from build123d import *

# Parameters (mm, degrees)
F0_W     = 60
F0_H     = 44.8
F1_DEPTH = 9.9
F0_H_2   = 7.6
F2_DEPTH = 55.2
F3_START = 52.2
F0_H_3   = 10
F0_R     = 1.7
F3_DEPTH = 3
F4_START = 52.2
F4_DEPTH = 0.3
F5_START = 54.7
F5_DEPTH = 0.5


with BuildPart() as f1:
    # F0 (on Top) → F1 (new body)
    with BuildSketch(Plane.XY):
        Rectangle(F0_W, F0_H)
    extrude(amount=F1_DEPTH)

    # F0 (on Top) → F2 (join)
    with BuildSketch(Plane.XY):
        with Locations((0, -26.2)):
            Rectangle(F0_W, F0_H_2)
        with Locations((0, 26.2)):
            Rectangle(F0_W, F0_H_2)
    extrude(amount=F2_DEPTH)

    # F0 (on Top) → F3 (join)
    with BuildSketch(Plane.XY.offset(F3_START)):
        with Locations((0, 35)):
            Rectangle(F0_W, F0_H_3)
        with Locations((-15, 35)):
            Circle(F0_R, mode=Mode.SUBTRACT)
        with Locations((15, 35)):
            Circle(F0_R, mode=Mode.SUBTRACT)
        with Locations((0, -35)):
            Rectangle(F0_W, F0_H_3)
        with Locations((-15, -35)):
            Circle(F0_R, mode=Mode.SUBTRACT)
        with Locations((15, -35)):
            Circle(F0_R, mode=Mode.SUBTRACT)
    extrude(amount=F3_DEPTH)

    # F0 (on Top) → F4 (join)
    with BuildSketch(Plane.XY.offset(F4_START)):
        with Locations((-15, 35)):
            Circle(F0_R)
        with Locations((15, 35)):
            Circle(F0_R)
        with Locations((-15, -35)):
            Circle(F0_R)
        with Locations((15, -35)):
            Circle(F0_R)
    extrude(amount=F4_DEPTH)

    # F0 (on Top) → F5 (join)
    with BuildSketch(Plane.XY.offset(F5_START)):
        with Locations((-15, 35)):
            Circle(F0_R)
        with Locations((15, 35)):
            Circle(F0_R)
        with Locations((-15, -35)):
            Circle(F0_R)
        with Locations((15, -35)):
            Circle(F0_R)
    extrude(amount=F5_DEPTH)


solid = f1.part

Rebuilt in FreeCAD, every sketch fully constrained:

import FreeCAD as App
import Part
import Sketcher

V = App.Vector


def add_polygon(sketch, points):
    """Adds a closed chain of lines whose ends are joined by coincident constraints."""
    first, n = sketch.GeometryCount, len(points)
    for a, b in zip(points, points[1:] + points[:1]):
        sketch.addGeometry(Part.LineSegment(App.Vector(*a, 0), App.Vector(*b, 0)), False)
    for i in range(n):
        sketch.addConstraint(Sketcher.Constraint("Coincident", first + i, 2, first + (i + 1) % n, 1))

doc = App.newDocument("Part")
params = doc.addObject("Spreadsheet::Sheet", "Params")
for row, (alias, value) in enumerate([
    ("sketch1_width", "60 mm"),
    ("sketch1_height", "44.8 mm"),
    ("pad1_length", "9.9 mm"),
    ("sketch2_width", "60 mm"),
    ("sketch2_height", "7.6 mm"),
    ("pad2_length", "55.2 mm"),
    ("sketch3_diameter", "3.4 mm"),
    ("sketch3_width", "60 mm"),
    ("sketch3_height", "10 mm"),
    ("pad3_length", "3 mm"),
    ("sketch4_diameter", "3.4 mm"),
    ("pad4_length", "0.3 mm"),
    ("sketch5_diameter", "3.4 mm"),
    ("pad5_length", "0.5 mm"),
], start=1):
    params.set(f"A{row}", alias)
    params.set(f"B{row}", "=" + value)
    params.setAlias(f"B{row}", alias)

body = doc.addObject("PartDesign::Body", "Body")

sketch1 = body.newObject("Sketcher::SketchObject", "Sketch")
sketch1.AttachmentSupport = (doc.getObject("XY_Plane"), [""])
sketch1.MapMode = "FlatFace"
add_polygon(sketch1, [(-30, 22), (-30, -22), (30, -22), (30, 22)])
sketch1.addConstraint([
    Sketcher.Constraint("Vertical", 0),
    Sketcher.Constraint("Horizontal", 1),
    Sketcher.Constraint("Vertical", 2),
    Sketcher.Constraint("Horizontal", 3),
    Sketcher.Constraint("Symmetric", 0, 2, 2, 2, -1, 1),
    Sketcher.Constraint("DistanceX", 1, 1, 1, 2, 60.0),
    Sketcher.Constraint("DistanceY", 0, 2, 0, 1, 44.8),
])
sketch1.setExpression("Constraints[9]", "Params.sketch1_width")
sketch1.setExpression("Constraints[10]", "Params.sketch1_height")
pad1 = body.newObject("PartDesign::Pad", "Pad")
pad1.Profile = sketch1
pad1.setExpression("Length", "Params.pad1_length")

sketch2 = body.newObject("Sketcher::SketchObject", "Sketch001")
sketch2.AttachmentSupport = (doc.getObject("XY_Plane"), [""])
sketch2.MapMode = "FlatFace"
add_polygon(sketch2, [(-30, -22), (-30, -30), (30, -30), (30, -22)])
add_polygon(sketch2, [(-30, 30), (-30, 22), (30, 22), (30, 30)])
sketch2.addConstraint([
    Sketcher.Constraint("Vertical", 0),
    Sketcher.Constraint("Horizontal", 1),
    Sketcher.Constraint("Vertical", 2),
    Sketcher.Constraint("Horizontal", 3),
    Sketcher.Constraint("Vertical", 4),
    Sketcher.Constraint("Horizontal", 5),
    Sketcher.Constraint("Vertical", 6),
    Sketcher.Constraint("Horizontal", 7),
    Sketcher.Constraint("Symmetric", 2, 2, 4, 2, -1, 1),
    Sketcher.Constraint("Symmetric", 0, 2, 6, 2, -1, 1),
    Sketcher.Constraint("Vertical", 3, 2, 4, 2),
    Sketcher.Constraint("DistanceX", 1, 1, 1, 2, 60.0),
    Sketcher.Constraint("DistanceY", 0, 2, 0, 1, 7.6),
    Sketcher.Constraint("DistanceY", 0, 2, -1, 1, 30.0),
])
sketch2.setExpression("Constraints[19]", "Params.sketch2_width")
sketch2.setExpression("Constraints[20]", "Params.sketch2_height")
pad2 = body.newObject("PartDesign::Pad", "Pad001")
pad2.Profile = sketch2
pad2.setExpression("Length", "Params.pad2_length")

sketch3 = body.newObject("Sketcher::SketchObject", "Sketch002")
sketch3.AttachmentSupport = (doc.getObject("XY_Plane"), [""])
sketch3.MapMode = "FlatFace"
sketch3.AttachmentOffset = App.Placement(V(0, 0, 52.2), App.Rotation())
add_polygon(sketch3, [(-30, 40), (-30, 30), (30, 30), (30, 40)])
sketch3.addGeometry(Part.Circle(V(-15, 35, 0), V(0, 0, 1), 1.7), False)
sketch3.addGeometry(Part.Circle(V(15, 35, 0), V(0, 0, 1), 1.7), False)
add_polygon(sketch3, [(-30, -30), (-30, -40), (30, -40), (30, -30)])
sketch3.addGeometry(Part.Circle(V(-15, -35, 0), V(0, 0, 1), 1.7), False)
sketch3.addGeometry(Part.Circle(V(15, -35, 0), V(0, 0, 1), 1.7), False)
sketch3.addConstraint([
    Sketcher.Constraint("Vertical", 0),
    Sketcher.Constraint("Horizontal", 1),
    Sketcher.Constraint("Vertical", 2),
    Sketcher.Constraint("Horizontal", 3),
    Sketcher.Constraint("Vertical", 6),
    Sketcher.Constraint("Horizontal", 7),
    Sketcher.Constraint("Vertical", 8),
    Sketcher.Constraint("Horizontal", 9),
    Sketcher.Constraint("Equal", 4, 5),
    Sketcher.Constraint("Equal", 5, 10),
    Sketcher.Constraint("Equal", 10, 11),
    Sketcher.Constraint("Symmetric", 5, 3, 10, 3, -1, 1),
    Sketcher.Constraint("Symmetric", 4, 3, 11, 3, -1, 1),
    Sketcher.Constraint("Symmetric", 2, 2, 6, 2, -1, 1),
    Sketcher.Constraint("Symmetric", 0, 2, 8, 2, -1, 1),
    Sketcher.Constraint("Symmetric", 4, 3, 5, 3, -2),
    Sketcher.Constraint("Vertical", 3, 2, 6, 2),
    Sketcher.Constraint("Diameter", 4, 3.4),
    Sketcher.Constraint("DistanceX", 1, 1, 1, 2, 60.0),
    Sketcher.Constraint("DistanceY", 0, 2, 0, 1, 10.0),
    Sketcher.Constraint("DistanceX", 4, 3, -1, 1, 15.0),
    Sketcher.Constraint("DistanceY", -1, 1, 4, 3, 35.0),
    Sketcher.Constraint("DistanceY", -1, 1, 0, 2, 30.0),
])
sketch3.setExpression("Constraints[25]", "Params.sketch3_diameter")
sketch3.setExpression("Constraints[26]", "Params.sketch3_width")
sketch3.setExpression("Constraints[27]", "Params.sketch3_height")
pad3 = body.newObject("PartDesign::Pad", "Pad002")
pad3.Profile = sketch3
pad3.setExpression("Length", "Params.pad3_length")

sketch4 = body.newObject("Sketcher::SketchObject", "Sketch003")
sketch4.AttachmentSupport = (doc.getObject("XY_Plane"), [""])
sketch4.MapMode = "FlatFace"
sketch4.AttachmentOffset = App.Placement(V(0, 0, 52.2), App.Rotation())
sketch4.addGeometry([
    Part.Circle(V(-15, 35, 0), V(0, 0, 1), 1.7),
    Part.Circle(V(15, 35, 0), V(0, 0, 1), 1.7),
    Part.Circle(V(-15, -35, 0), V(0, 0, 1), 1.7),
    Part.Circle(V(15, -35, 0), V(0, 0, 1), 1.7),
], False)
sketch4.addConstraint([
    Sketcher.Constraint("Equal", 0, 1),
    Sketcher.Constraint("Equal", 1, 2),
    Sketcher.Constraint("Equal", 2, 3),
    Sketcher.Constraint("Symmetric", 1, 3, 2, 3, -1, 1),
    Sketcher.Constraint("Symmetric", 0, 3, 3, 3, -1, 1),
    Sketcher.Constraint("Symmetric", 0, 3, 1, 3, -2),
    Sketcher.Constraint("Diameter", 0, 3.4),
    Sketcher.Constraint("DistanceX", 0, 3, -1, 1, 15.0),
    Sketcher.Constraint("DistanceY", -1, 1, 0, 3, 35.0),
])
sketch4.setExpression("Constraints[6]", "Params.sketch4_diameter")
pad4 = body.newObject("PartDesign::Pad", "Pad003")
pad4.Profile = sketch4
pad4.setExpression("Length", "Params.pad4_length")

sketch5 = body.newObject("Sketcher::SketchObject", "Sketch004")
sketch5.AttachmentSupport = (doc.getObject("XY_Plane"), [""])
sketch5.MapMode = "FlatFace"
sketch5.AttachmentOffset = App.Placement(V(0, 0, 54.7), App.Rotation())
sketch5.addGeometry([
    Part.Circle(V(-15, 35, 0), V(0, 0, 1), 1.7),
    Part.Circle(V(15, 35, 0), V(0, 0, 1), 1.7),
    Part.Circle(V(-15, -35, 0), V(0, 0, 1), 1.7),
    Part.Circle(V(15, -35, 0), V(0, 0, 1), 1.7),
], False)
sketch5.addConstraint([
    Sketcher.Constraint("Equal", 0, 1),
    Sketcher.Constraint("Equal", 1, 2),
    Sketcher.Constraint("Equal", 2, 3),
    Sketcher.Constraint("Symmetric", 1, 3, 2, 3, -1, 1),
    Sketcher.Constraint("Symmetric", 0, 3, 3, 3, -1, 1),
    Sketcher.Constraint("Symmetric", 0, 3, 1, 3, -2),
    Sketcher.Constraint("Diameter", 0, 3.4),
    Sketcher.Constraint("DistanceX", 0, 3, -1, 1, 15.0),
    Sketcher.Constraint("DistanceY", -1, 1, 0, 3, 35.0),
])
sketch5.setExpression("Constraints[6]", "Params.sketch5_diameter")
pad5 = body.newObject("PartDesign::Pad", "Pad004")
pad5.Profile = sketch5
pad5.setExpression("Length", "Params.pad5_length")

doc.recompute()
